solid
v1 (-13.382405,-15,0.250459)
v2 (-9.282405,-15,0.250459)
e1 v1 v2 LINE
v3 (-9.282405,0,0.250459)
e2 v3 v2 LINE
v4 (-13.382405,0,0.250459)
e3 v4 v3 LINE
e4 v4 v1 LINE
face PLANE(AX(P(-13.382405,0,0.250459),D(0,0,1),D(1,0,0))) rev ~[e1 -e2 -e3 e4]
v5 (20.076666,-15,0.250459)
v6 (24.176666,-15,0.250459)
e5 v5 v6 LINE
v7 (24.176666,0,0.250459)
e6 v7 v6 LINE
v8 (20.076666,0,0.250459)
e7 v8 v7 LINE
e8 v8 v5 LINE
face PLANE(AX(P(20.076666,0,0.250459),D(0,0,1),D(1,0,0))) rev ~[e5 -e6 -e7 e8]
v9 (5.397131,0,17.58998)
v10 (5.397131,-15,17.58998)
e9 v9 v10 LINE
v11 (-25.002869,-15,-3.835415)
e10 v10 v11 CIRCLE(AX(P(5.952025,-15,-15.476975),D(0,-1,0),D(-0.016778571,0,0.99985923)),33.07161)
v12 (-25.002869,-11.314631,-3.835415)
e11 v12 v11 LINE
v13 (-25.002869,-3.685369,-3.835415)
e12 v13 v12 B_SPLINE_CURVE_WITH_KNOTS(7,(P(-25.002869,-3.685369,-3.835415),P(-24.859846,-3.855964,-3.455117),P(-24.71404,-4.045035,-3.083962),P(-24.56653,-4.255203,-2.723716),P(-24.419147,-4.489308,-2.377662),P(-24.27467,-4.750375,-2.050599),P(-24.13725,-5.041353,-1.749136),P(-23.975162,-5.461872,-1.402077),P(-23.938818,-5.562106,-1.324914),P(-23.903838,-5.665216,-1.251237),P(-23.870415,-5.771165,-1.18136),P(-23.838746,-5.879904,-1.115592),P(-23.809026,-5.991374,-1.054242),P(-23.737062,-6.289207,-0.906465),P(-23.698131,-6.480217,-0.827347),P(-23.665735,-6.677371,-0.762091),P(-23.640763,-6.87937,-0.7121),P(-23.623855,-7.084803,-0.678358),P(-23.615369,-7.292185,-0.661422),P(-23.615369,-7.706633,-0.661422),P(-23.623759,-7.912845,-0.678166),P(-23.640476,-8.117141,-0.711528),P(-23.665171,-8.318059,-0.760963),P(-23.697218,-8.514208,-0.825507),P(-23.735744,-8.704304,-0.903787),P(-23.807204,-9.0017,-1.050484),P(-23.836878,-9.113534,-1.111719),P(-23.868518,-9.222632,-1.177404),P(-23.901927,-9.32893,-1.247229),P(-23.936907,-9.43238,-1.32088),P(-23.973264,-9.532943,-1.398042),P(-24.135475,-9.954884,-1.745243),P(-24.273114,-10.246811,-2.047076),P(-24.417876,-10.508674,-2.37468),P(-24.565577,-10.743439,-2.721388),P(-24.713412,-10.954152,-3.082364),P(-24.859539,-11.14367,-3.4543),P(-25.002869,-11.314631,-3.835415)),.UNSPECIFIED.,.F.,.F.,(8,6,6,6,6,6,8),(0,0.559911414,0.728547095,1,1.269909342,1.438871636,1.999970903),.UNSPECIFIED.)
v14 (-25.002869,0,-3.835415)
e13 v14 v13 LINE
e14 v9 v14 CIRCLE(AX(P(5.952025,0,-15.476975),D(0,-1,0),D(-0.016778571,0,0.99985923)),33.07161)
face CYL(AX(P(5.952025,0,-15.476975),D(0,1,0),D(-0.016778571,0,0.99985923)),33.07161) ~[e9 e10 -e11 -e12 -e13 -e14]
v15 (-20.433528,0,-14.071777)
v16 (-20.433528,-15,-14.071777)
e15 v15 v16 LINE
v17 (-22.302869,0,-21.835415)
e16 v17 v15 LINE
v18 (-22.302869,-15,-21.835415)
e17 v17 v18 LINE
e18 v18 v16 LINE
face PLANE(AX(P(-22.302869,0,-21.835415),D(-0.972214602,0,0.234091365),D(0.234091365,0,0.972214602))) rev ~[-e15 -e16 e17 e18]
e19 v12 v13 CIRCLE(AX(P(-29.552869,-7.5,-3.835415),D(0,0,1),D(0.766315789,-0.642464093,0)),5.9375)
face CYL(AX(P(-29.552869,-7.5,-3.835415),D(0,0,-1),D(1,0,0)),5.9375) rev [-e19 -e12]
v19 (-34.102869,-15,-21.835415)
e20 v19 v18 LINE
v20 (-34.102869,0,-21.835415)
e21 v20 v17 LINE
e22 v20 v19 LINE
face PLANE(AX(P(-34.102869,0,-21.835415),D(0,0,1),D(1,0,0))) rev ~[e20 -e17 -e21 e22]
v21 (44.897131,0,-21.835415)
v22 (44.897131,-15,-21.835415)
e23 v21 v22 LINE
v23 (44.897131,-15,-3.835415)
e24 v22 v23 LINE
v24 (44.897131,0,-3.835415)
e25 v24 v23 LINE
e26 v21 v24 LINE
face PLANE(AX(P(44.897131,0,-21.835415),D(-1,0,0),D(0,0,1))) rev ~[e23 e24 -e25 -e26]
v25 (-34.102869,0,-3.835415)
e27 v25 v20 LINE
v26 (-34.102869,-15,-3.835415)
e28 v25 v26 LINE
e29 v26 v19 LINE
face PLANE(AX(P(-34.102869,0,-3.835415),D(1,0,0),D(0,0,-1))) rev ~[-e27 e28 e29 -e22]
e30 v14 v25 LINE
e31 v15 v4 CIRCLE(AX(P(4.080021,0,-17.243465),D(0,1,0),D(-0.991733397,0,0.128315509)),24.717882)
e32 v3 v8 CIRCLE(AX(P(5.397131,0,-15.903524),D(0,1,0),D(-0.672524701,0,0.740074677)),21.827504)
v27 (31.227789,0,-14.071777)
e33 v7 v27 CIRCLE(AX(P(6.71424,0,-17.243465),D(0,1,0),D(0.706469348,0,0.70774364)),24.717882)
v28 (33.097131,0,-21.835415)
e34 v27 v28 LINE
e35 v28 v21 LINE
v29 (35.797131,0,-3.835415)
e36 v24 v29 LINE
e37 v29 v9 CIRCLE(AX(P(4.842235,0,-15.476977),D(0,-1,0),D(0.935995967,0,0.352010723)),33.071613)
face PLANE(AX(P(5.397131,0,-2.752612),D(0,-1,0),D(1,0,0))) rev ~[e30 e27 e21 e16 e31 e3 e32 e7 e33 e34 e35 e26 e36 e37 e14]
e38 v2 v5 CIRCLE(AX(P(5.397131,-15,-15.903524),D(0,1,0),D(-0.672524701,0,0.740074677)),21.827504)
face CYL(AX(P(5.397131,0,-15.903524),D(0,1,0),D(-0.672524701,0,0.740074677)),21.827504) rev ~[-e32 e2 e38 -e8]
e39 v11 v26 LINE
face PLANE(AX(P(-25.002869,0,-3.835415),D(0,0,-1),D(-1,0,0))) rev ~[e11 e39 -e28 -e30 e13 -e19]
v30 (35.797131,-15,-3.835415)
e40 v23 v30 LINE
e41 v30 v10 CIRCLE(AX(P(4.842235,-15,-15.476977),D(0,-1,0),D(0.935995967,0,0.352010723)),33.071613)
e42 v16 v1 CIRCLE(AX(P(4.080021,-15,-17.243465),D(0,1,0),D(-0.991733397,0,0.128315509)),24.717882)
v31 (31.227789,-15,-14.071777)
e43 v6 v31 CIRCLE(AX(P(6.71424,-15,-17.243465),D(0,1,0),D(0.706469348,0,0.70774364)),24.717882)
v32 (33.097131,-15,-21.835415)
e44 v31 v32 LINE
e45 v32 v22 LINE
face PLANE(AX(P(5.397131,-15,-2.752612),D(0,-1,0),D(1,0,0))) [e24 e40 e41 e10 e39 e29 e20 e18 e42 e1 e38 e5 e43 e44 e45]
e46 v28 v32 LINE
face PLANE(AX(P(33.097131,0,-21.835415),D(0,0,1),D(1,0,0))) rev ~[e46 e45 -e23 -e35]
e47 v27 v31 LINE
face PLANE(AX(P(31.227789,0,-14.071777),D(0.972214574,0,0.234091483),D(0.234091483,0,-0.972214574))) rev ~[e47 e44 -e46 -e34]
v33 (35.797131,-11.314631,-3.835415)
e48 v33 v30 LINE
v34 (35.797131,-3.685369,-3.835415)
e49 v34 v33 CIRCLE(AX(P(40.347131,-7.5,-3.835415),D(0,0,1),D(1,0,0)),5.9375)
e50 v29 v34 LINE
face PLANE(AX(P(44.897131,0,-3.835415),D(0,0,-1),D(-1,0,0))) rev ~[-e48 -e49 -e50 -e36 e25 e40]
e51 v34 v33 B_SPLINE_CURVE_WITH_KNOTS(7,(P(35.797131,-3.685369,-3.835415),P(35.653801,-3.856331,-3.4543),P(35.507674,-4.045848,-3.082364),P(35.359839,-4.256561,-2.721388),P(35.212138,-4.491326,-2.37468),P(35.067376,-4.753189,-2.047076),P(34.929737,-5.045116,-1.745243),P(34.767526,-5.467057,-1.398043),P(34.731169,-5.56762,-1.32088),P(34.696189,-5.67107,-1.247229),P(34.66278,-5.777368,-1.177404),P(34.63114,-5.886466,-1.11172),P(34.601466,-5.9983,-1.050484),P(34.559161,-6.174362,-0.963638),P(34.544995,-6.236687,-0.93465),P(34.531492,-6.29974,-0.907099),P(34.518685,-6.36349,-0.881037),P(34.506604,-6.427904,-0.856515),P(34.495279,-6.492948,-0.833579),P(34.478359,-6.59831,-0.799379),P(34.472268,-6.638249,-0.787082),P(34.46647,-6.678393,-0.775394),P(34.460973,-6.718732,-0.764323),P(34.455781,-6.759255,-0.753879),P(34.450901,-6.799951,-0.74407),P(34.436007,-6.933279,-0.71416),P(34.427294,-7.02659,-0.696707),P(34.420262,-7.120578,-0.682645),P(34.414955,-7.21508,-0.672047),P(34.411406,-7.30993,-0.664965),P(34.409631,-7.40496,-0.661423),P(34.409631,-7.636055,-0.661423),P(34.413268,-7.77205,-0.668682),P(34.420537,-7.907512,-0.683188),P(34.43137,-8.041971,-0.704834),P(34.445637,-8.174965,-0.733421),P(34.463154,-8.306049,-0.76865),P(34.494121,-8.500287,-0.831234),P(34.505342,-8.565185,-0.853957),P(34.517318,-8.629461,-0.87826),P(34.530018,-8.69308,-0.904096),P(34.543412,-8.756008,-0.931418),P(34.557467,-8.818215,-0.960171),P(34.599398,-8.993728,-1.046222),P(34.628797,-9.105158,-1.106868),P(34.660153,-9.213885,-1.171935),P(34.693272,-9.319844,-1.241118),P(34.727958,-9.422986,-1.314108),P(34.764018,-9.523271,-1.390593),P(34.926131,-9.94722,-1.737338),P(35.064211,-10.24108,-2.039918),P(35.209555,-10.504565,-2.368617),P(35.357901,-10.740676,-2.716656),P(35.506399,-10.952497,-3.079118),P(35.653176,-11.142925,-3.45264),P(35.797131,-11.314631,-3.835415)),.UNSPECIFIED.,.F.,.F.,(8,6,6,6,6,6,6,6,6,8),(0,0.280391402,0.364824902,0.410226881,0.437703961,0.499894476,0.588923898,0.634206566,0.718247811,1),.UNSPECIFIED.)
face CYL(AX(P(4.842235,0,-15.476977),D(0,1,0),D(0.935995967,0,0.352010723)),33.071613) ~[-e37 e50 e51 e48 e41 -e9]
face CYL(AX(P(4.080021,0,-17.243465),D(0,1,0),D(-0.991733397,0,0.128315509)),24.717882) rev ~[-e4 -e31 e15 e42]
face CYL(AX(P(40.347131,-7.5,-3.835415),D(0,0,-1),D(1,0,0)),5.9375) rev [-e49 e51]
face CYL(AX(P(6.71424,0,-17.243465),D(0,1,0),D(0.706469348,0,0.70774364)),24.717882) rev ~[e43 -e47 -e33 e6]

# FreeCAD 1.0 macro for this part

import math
import FreeCAD as App
import Part
import Sketcher
from FreeCAD import Vector
Q = App.Units.Quantity

doc = App.newDocument("Part")
body = doc.addObject("PartDesign::Body", "Body")

sketch1 = body.newObject("Sketcher::SketchObject", "Sketch")
sketch1.AttachmentSupport = (doc.getObject("XZ_Plane"), [""])
sketch1.MapMode = "FlatFace"
sketch1.addGeometry([
    Part.ArcOfCircle(Part.Circle(Vector(5.4, -15.9, 0), Vector(0, 0, 1), 21.8), math.radians(48), math.radians(132)),
    Part.LineSegment(Vector(20.1, 0.3, 0), Vector(24.2, 0.3, 0)),
    Part.ArcOfCircle(Part.Circle(Vector(6.7, -17.2, 0), Vector(0, 0, 1), 24.7), math.radians(7), math.radians(45)),
    Part.LineSegment(Vector(31.2, -14.1, 0), Vector(33.1, -21.8, 0)),
    Part.LineSegment(Vector(33.1, -21.8, 0), Vector(44.9, -21.8, 0)),
    Part.LineSegment(Vector(44.9, -21.8, 0), Vector(44.9, -3.8, 0)),
    Part.LineSegment(Vector(44.9, -3.8, 0), Vector(35.8, -3.8, 0)),
    Part.ArcOfCircle(Part.Circle(Vector(4.8, -15.5, 0), Vector(0, 0, 1), 33.1), math.radians(21), math.radians(89)),
    Part.ArcOfCircle(Part.Circle(Vector(6, -15.5, 0), Vector(0, 0, 1), 33.1), math.radians(91), math.radians(159)),
    Part.LineSegment(Vector(-25, -3.8, 0), Vector(-34.1, -3.8, 0)),
    Part.LineSegment(Vector(-34.1, -3.8, 0), Vector(-34.1, -21.8, 0)),
    Part.LineSegment(Vector(-34.1, -21.8, 0), Vector(-22.3, -21.8, 0)),
    Part.LineSegment(Vector(-22.3, -21.8, 0), Vector(-20.4, -14.1, 0)),
    Part.ArcOfCircle(Part.Circle(Vector(4.1, -17.2, 0), Vector(0, 0, 1), 24.7), math.radians(135), math.radians(173)),
    Part.LineSegment(Vector(-13.4, 0.3, 0), Vector(-9.3, 0.3, 0)),
], False)
sketch1.addConstraint([
    Sketcher.Constraint("Coincident", 0, 1, 1, 1),
    Sketcher.Constraint("Coincident", 1, 2, 2, 2),
    Sketcher.Constraint("Coincident", 2, 1, 3, 1),
    Sketcher.Constraint("Coincident", 3, 2, 4, 1),
    Sketcher.Constraint("Coincident", 4, 2, 5, 1),
    Sketcher.Constraint("Coincident", 5, 2, 6, 1),
    Sketcher.Constraint("Coincident", 6, 2, 7, 1),
    Sketcher.Constraint("Coincident", 7, 2, 8, 1),
    Sketcher.Constraint("Coincident", 8, 2, 9, 1),
    Sketcher.Constraint("Coincident", 9, 2, 10, 1),
    Sketcher.Constraint("Coincident", 10, 2, 11, 1),
    Sketcher.Constraint("Coincident", 11, 2, 12, 1),
    Sketcher.Constraint("Coincident", 12, 2, 13, 2),
    Sketcher.Constraint("Coincident", 13, 1, 14, 1),
    Sketcher.Constraint("Coincident", 14, 2, 0, 2),
    Sketcher.Constraint("Horizontal", 1),
    Sketcher.Constraint("Horizontal", 4),
    Sketcher.Constraint("Vertical", 5),
    Sketcher.Constraint("Horizontal", 6),
    Sketcher.Constraint("Horizontal", 9),
    Sketcher.Constraint("Vertical", 10),
    Sketcher.Constraint("Horizontal", 11),
    Sketcher.Constraint("Horizontal", 14),
    Sketcher.Constraint("Equal", 2, 13),
    Sketcher.Constraint("Horizontal", 2, 3, 13, 3),
    Sketcher.Constraint("Horizontal", 6, 2, 8, 2),
    Sketcher.Constraint("Horizontal", 4, 2, 10, 2),
    Sketcher.Constraint("Horizontal", 2, 1, 12, 2),
    Sketcher.Constraint("Horizontal", 1, 2, 13, 1),
    Sketcher.Constraint("Vertical", 0, 3, 7, 2),
    Sketcher.Constraint("Equal", 6, 9),
    Sketcher.Constraint("Equal", 4, 11),
    Sketcher.Constraint("Equal", 1, 14),
    Sketcher.Constraint("Equal", 3, 12),
    Sketcher.Constraint("DistanceY", 5, 1, 5, 2, Q("18 mm")),
    Sketcher.Constraint("DistanceX", 1, 1, 1, 2, Q("4.1 mm")),
    Sketcher.Constraint("DistanceX", 4, 1, 4, 2, Q("11.8 mm")),
    Sketcher.Constraint("DistanceX", 6, 2, 6, 1, Q("9.1 mm")),
    Sketcher.Constraint("DistanceX", 8, 2, 0, 3, Q("30.399999 mm")),
    Sketcher.Constraint("Radius", 2, Q("24.717882 mm")),
    Sketcher.Constraint("Radius", 8, Q("33.07161 mm")),
    Sketcher.Constraint("Radius", 0, Q("21.827504 mm")),
    Sketcher.Constraint("Radius", 7, Q("33.071613 mm")),
    Sketcher.Constraint("Distance", 3, Q("7.985519 mm")),
    Sketcher.Constraint("DistanceX", -1, 1, 0, 3, Q("5.397131 mm")),
    Sketcher.Constraint("DistanceX", -1, 1, 2, 3, Q("6.71424 mm")),
    Sketcher.Constraint("DistanceY", -1, 1, 0, 1, Q("0.250459 mm")),
    Sketcher.Constraint("DistanceX", -1, 1, 2, 1, Q("31.227789 mm")),
    Sketcher.Constraint("DistanceY", -1, 1, 7, 2, Q("17.58998 mm")),
    Sketcher.Constraint("DistanceY", 2, 3, 0, 3, Q("1.339941 mm")),
])
pad1 = body.newObject("PartDesign::Pad", "Pad")
pad1.Profile = sketch1
pad1.Length = 15

sketch2 = body.newObject("Sketcher::SketchObject", "Sketch001")
sketch2.AttachmentSupport = (doc.getObject("XY_Plane"), [""])
sketch2.MapMode = "FlatFace"
sketch2.AttachmentOffset = App.Placement(Vector(0, 0, -3.835415), App.Rotation())
sketch2.addGeometry([
    Part.Circle(Vector(-29.6, -7.5, 0), Vector(0, 0, 1), 5.9),
    Part.Circle(Vector(-29.6, -7.5, 0), Vector(0, 0, 1), 2.4),
    Part.Circle(Vector(40.3, -7.5, 0), Vector(0, 0, 1), 5.9),
    Part.Circle(Vector(40.3, -7.5, 0), Vector(0, 0, 1), 2.4),
], False)
sketch2.addConstraint([
    Sketcher.Constraint("Coincident", 1, 3, 0, 3),
    Sketcher.Constraint("Coincident", 3, 3, 2, 3),
    Sketcher.Constraint("Equal", 0, 2),
    Sketcher.Constraint("Equal", 1, 3),
    Sketcher.Constraint("Horizontal", 1, 3, 2, 3),
    Sketcher.Constraint("Diameter", 1, Q("4.75 mm")),
    Sketcher.Constraint("Diameter", 0, Q("11.875 mm")),
    Sketcher.Constraint("DistanceY", 0, 3, -1, 1, Q("7.5 mm")),
    Sketcher.Constraint("DistanceX", 0, 3, 2, 3, Q("69.9 mm")),
    Sketcher.Constraint("DistanceX", 0, 3, -1, 1, Q("29.552869 mm")),
])
pocket1 = body.newObject("PartDesign::Pocket", "Pocket")
pocket1.Profile = sketch2
pocket1.Length = 25.4
pocket1.Reversed = True

doc.recompute()
